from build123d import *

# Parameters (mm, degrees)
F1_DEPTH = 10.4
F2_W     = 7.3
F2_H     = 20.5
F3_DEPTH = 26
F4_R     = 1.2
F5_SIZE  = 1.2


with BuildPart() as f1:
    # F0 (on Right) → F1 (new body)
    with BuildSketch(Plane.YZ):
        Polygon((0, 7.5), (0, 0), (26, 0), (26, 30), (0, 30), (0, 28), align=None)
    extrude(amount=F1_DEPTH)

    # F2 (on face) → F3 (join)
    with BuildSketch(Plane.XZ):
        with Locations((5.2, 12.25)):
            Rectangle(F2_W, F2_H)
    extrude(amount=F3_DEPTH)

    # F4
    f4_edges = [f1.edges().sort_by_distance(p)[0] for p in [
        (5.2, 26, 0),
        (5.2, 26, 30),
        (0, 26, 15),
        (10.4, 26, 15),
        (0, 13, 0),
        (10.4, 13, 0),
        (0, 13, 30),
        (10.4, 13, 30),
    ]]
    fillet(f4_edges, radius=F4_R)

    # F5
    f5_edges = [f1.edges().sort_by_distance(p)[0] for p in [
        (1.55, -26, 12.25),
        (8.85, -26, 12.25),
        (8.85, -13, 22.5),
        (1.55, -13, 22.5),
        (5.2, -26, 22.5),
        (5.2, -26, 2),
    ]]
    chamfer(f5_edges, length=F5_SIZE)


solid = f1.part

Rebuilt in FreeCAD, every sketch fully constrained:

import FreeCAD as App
import Part
import Sketcher

V = App.Vector


def edges_at(feature, points):
    """Names of the edges that pass closest to the given points."""
    edges = feature.Shape.Edges
    near = lambda p: min(range(len(edges)), key=lambda i: edges[i].distToShape(Part.Vertex(*p))[0])
    return sorted({f"Edge{near(p) + 1}" for p in points})

doc = App.newDocument("Part")
body = doc.addObject("PartDesign::Body", "Body")

# Sketch on YZ plane
sketch1 = body.newObject("Sketcher::SketchObject", "Sketch")
sketch1.AttachmentSupport = (doc.getObject("YZ_Plane"), [""])
sketch1.MapMode = "FlatFace"
sketch1.addGeometry([
    Part.LineSegment(V(0, 0, 0), V(26, 0, 0)),
    Part.LineSegment(V(26, 0, 0), V(26, 30, 0)),
    Part.LineSegment(V(26, 30, 0), V(0, 30, 0)),
    Part.LineSegment(V(0, 30, 0), V(0, 0, 0)),
], False)
sketch1.addConstraint([
    Sketcher.Constraint("Coincident", 0, 2, 1, 1),
    Sketcher.Constraint("Coincident", 1, 2, 2, 1),
    Sketcher.Constraint("Coincident", 2, 2, 3, 1),
    Sketcher.Constraint("Coincident", 3, 2, 0, 1),
    Sketcher.Constraint("Horizontal", 0),
    Sketcher.Constraint("Vertical", 1),
    Sketcher.Constraint("Horizontal", 2),
    Sketcher.Constraint("Vertical", 3),
    Sketcher.Constraint("Coincident", 3, 2, -1, 1),
    Sketcher.Constraint("DistanceX", 0, 1, 0, 2, 26.0),
    Sketcher.Constraint("DistanceY", 1, 1, 1, 2, 30.0),
])
pad1 = body.newObject("PartDesign::Pad", "Pad")
pad1.Profile = sketch1
pad1.Length = 10.4

# Sketch on XZ plane
sketch2 = body.newObject("Sketcher::SketchObject", "Sketch001")
sketch2.AttachmentSupport = (doc.getObject("XZ_Plane"), [""])
sketch2.MapMode = "FlatFace"
sketch2.addGeometry([
    Part.LineSegment(V(1.55, 22.5, 0), V(1.55, 2, 0)),
    Part.LineSegment(V(1.55, 2, 0), V(8.85, 2, 0)),
    Part.LineSegment(V(8.85, 2, 0), V(8.85, 22.5, 0)),
    Part.LineSegment(V(8.85, 22.5, 0), V(1.55, 22.5, 0)),
], False)
sketch2.addConstraint([
    Sketcher.Constraint("Coincident", 0, 2, 1, 1),
    Sketcher.Constraint("Coincident", 1, 2, 2, 1),
    Sketcher.Constraint("Coincident", 2, 2, 3, 1),
    Sketcher.Constraint("Coincident", 3, 2, 0, 1),
    Sketcher.Constraint("Vertical", 0),
    Sketcher.Constraint("Horizontal", 1),
    Sketcher.Constraint("Vertical", 2),
    Sketcher.Constraint("Horizontal", 3),
    Sketcher.Constraint("DistanceX", 1, 1, 1, 2, 7.3),
    Sketcher.Constraint("DistanceY", 0, 2, 0, 1, 20.5),
    Sketcher.Constraint("DistanceY", -1, 1, 0, 2, 2.0),
    Sketcher.Constraint("DistanceX", -1, 1, 0, 2, 1.55),
])
pad2 = body.newObject("PartDesign::Pad", "Pad001")
pad2.Profile = sketch2
pad2.Length = 26
doc.recompute()

fillet = body.newObject("PartDesign::Fillet", "Fillet")
fillet.Base = (pad2, edges_at(pad2, [
    (5.2, 26, 0),
    (5.2, 26, 30),
    (0, 26, 15),
    (10.4, 26, 15),
    (0, 13, 0),
    (10.4, 13, 0),
    (0, 13, 30),
    (10.4, 13, 30),
]))
fillet.Radius = 1.2
doc.recompute()

chamfer = body.newObject("PartDesign::Chamfer", "Chamfer")
chamfer.Base = (fillet, edges_at(fillet, [
    (1.55, -26, 12.25),
    (8.85, -26, 12.25),
    (8.85, -13, 22.5),
    (1.55, -13, 22.5),
    (5.2, -26, 22.5),
    (5.2, -26, 2),
]))
chamfer.Size = 1.2

doc.recompute()
